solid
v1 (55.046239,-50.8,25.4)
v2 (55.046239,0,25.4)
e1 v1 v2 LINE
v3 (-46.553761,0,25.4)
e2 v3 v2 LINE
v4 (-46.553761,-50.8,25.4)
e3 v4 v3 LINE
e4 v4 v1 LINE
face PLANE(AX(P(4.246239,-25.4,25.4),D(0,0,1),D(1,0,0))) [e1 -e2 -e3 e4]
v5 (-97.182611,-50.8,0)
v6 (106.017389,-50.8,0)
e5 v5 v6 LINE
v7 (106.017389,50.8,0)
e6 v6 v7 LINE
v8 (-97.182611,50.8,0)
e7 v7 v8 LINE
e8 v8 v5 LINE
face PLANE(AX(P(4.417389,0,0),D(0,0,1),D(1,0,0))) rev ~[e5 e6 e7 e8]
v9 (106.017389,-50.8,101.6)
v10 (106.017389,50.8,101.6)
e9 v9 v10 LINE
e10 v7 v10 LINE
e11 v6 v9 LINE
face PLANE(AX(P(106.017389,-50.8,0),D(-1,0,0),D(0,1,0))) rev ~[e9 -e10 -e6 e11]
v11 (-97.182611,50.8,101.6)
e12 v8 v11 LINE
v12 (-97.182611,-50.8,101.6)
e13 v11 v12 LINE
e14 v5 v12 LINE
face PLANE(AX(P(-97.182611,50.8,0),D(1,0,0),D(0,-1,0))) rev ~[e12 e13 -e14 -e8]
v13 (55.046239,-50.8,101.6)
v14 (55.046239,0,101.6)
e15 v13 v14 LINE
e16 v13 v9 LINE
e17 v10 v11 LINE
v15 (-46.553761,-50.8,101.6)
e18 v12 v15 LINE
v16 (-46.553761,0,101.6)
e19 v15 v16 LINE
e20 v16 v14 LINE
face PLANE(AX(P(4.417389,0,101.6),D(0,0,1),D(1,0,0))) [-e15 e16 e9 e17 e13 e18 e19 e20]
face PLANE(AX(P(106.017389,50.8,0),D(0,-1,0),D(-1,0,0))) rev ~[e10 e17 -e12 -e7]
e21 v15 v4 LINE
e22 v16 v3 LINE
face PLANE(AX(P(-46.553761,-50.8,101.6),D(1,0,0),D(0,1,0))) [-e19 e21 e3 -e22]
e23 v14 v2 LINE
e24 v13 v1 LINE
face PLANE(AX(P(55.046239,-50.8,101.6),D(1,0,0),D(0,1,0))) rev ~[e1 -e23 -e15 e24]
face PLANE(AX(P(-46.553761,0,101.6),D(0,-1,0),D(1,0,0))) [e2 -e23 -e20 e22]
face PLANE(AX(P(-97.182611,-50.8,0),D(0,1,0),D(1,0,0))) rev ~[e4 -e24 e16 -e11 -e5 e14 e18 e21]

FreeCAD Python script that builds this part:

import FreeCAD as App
import Part
import Sketcher
from FreeCAD import Vector
Q = App.Units.Quantity

doc = App.newDocument("Part")
body = doc.addObject("PartDesign::Body", "Body")

# Sketch on XY plane
sketch1 = body.newObject("Sketcher::SketchObject", "Sketch")
sketch1.AttachmentSupport = (doc.getObject("XY_Plane"), [""])
sketch1.MapMode = "FlatFace"
sketch1.addGeometry(Part.LineSegment(Vector(106.017389, 50.8, 0), Vector(-97.182611, 50.8, 0)), False)
sketch1.addGeometry(Part.LineSegment(Vector(-97.182611, 50.8, 0), Vector(-97.182611, -50.8, 0)), False)
sketch1.addGeometry(Part.LineSegment(Vector(-97.182611, -50.8, 0), Vector(106.017389, -50.8, 0)), False)
sketch1.addGeometry(Part.LineSegment(Vector(106.017389, -50.8, 0), Vector(106.017389, 50.8, 0)), False)
sketch1.addConstraint(Sketcher.Constraint("Coincident", 0, 2, 1, 1))
sketch1.addConstraint(Sketcher.Constraint("Coincident", 1, 2, 2, 1))
sketch1.addConstraint(Sketcher.Constraint("Coincident", 2, 2, 3, 1))
sketch1.addConstraint(Sketcher.Constraint("Coincident", 3, 2, 0, 1))
sketch1.addConstraint(Sketcher.Constraint("Horizontal", 0))
sketch1.addConstraint(Sketcher.Constraint("Vertical", 1))
sketch1.addConstraint(Sketcher.Constraint("Horizontal", 2))
sketch1.addConstraint(Sketcher.Constraint("Vertical", 3))
sketch1.addConstraint(Sketcher.Constraint("DistanceX", 0, 2, 0, 1, Q("8 in")))
sketch1.addConstraint(Sketcher.Constraint("DistanceY", 1, 2, 1, 1, Q("4 in")))
sketch1.addConstraint(Sketcher.Constraint("DistanceY", -1, 1, 0, 2, Q("2 in")))
sketch1.addConstraint(Sketcher.Constraint("DistanceX", 0, 2, -1, 1, 97.182611))
pad1 = body.newObject("PartDesign::Pad", "Pad")
pad1.Profile = sketch1
pad1.Length = Q("4 in")

# Sketch on XY plane
sketch2 = body.newObject("Sketcher::SketchObject", "Sketch001")
sketch2.AttachmentSupport = (doc.getObject("XY_Plane"), [""])
sketch2.MapMode = "FlatFace"
sketch2.AttachmentOffset = App.Placement(Vector(0, 0, 4 * 25.4), App.Rotation())
sketch2.addGeometry(Part.LineSegment(Vector(-46.553761, 0, 0), Vector(-46.553761, -50.8, 0)), False)
sketch2.addGeometry(Part.LineSegment(Vector(-46.553761, -50.8, 0), Vector(55.046239, -50.8, 0)), False)
sketch2.addGeometry(Part.LineSegment(Vector(55.046239, -50.8, 0), Vector(55.046239, 0, 0)), False)
sketch2.addGeometry(Part.LineSegment(Vector(55.046239, 0, 0), Vector(-46.553761, 0, 0)), False)
sketch2.addConstraint(Sketcher.Constraint("Coincident", 0, 2, 1, 1))
sketch2.addConstraint(Sketcher.Constraint("Coincident", 1, 2, 2, 1))
sketch2.addConstraint(Sketcher.Constraint("Coincident", 2, 2, 3, 1))
sketch2.addConstraint(Sketcher.Constraint("Coincident", 3, 2, 0, 1))
sketch2.addConstraint(Sketcher.Constraint("Vertical", 0))
sketch2.addConstraint(Sketcher.Constraint("Horizontal", 1))
sketch2.addConstraint(Sketcher.Constraint("Vertical", 2))
sketch2.addConstraint(Sketcher.Constraint("Horizontal", 3))
sketch2.addConstraint(Sketcher.Constraint("PointOnObject", 2, 2, -1))
sketch2.addConstraint(Sketcher.Constraint("DistanceX", 1, 1, 1, 2, Q("4 in")))
sketch2.addConstraint(Sketcher.Constraint("DistanceY", 0, 2, 0, 1, Q("2 in")))
sketch2.addConstraint(Sketcher.Constraint("DistanceX", 0, 2, -1, 1, 46.553761))
pocket1 = body.newObject("PartDesign::Pocket", "Pocket")
pocket1.Profile = sketch2
pocket1.Length = Q("3 in")

doc.recompute()
